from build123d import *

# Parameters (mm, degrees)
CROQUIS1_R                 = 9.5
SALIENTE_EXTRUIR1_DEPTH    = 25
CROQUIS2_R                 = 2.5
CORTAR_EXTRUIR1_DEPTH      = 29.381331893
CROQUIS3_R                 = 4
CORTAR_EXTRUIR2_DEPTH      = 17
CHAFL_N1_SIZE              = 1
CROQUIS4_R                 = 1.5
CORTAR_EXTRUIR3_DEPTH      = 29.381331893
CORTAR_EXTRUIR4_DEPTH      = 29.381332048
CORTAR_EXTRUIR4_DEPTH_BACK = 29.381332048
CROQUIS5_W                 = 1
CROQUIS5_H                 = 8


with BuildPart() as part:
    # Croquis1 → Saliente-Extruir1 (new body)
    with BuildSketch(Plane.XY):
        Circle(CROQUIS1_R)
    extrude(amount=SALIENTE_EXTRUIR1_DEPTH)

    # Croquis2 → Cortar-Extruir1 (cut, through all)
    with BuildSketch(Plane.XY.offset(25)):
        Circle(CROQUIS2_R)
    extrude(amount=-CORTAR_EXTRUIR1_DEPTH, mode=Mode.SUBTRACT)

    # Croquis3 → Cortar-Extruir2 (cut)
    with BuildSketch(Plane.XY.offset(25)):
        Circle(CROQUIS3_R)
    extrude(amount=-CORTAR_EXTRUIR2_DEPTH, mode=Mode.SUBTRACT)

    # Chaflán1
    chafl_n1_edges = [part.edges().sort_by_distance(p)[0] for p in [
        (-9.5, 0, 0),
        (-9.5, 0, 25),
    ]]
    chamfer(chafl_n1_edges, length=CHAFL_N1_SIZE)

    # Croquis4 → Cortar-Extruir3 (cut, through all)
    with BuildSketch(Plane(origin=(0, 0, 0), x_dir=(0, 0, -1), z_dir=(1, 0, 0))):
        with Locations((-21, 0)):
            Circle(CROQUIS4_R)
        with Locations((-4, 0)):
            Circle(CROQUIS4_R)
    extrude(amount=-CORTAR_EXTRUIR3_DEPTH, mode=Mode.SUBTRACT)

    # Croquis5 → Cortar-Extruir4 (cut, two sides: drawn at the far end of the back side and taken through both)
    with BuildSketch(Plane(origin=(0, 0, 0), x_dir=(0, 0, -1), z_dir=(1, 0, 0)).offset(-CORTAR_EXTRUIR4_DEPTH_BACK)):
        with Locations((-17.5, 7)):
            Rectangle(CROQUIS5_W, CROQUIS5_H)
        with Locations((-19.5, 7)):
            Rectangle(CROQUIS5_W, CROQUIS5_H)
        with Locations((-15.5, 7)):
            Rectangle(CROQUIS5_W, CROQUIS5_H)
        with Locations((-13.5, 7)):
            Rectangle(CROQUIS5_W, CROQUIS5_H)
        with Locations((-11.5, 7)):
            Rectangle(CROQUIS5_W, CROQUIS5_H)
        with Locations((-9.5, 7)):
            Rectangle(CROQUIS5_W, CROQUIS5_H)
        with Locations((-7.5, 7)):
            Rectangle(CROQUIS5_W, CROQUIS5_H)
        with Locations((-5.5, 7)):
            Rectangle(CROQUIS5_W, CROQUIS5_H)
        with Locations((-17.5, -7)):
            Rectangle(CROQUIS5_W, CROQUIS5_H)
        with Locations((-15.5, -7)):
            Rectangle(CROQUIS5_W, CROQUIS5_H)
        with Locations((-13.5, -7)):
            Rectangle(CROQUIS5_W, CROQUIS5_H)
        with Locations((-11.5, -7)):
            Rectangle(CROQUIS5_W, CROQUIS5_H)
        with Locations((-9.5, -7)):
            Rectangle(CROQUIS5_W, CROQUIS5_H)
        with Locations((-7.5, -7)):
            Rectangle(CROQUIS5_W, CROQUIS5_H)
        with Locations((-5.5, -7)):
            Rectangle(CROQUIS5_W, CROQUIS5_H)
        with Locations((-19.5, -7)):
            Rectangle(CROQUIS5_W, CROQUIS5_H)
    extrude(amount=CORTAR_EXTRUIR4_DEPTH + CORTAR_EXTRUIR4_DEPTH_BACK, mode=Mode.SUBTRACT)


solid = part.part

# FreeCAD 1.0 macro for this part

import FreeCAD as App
import Part
import Sketcher

V = App.Vector
Q = App.Units.Quantity


def edges_at(feature, points):
    """Names of the edges that pass closest to the given points."""
    edges = feature.Shape.Edges
    near = lambda p: min(range(len(edges)), key=lambda i: edges[i].distToShape(Part.Vertex(*p))[0])
    return sorted({f"Edge{near(p) + 1}" for p in points})

doc = App.newDocument("Part")
params = doc.addObject("Spreadsheet::Sheet", "Params")
for row, (alias, value) in enumerate([
    ("sketch1_diameter", "19 mm"),
    ("pad1_length", "25 mm"),
    ("sketch2_diameter", "5 mm"),
    ("sketch3_diameter", "8 mm"),
    ("pocket2_length", "17 mm"),
    ("chamfer_size", "1 mm"),
    ("sketch4_diameter", "3 mm"),
    ("sketch5_width", "8 mm"),
    ("sketch5_height", "1 mm"),
], start=1):
    params.set(f"A{row}", alias)
    params.set(f"B{row}", "=" + value)
    params.setAlias(f"B{row}", alias)

body = doc.addObject("PartDesign::Body", "Body")

# Sketch on XY plane
sketch1 = body.newObject("Sketcher::SketchObject", "Sketch")
sketch1.AttachmentSupport = (doc.getObject("XY_Plane"), [""])
sketch1.MapMode = "FlatFace"
sketch1.addGeometry(Part.Circle(V(0, 0, 0), V(0, 0, 1), 10), False)
sketch1.addConstraint([
    Sketcher.Constraint("Coincident", 0, 3, -1, 1),
    Sketcher.Constraint("Diameter", 0, Q("19 mm")),
])
sketch1.setExpression("Constraints[1]", "Params.sketch1_diameter")
pad1 = body.newObject("PartDesign::Pad", "Pad")
pad1.Profile = sketch1
pad1.setExpression("Length", "Params.pad1_length")

# Sketch on XY plane
sketch2 = body.newObject("Sketcher::SketchObject", "Sketch001")
sketch2.AttachmentSupport = (doc.getObject("XY_Plane"), [""])
sketch2.MapMode = "FlatFace"
sketch2.AttachmentOffset = App.Placement(V(0, 0, 25), App.Rotation())
sketch2.addGeometry(Part.Circle(V(0, 0, 0), V(0, 0, 1), 2.5), False)
sketch2.addConstraint([
    Sketcher.Constraint("Coincident", 0, 3, -1, 1),
    Sketcher.Constraint("Diameter", 0, Q("5 mm")),
])
sketch2.setExpression("Constraints[1]", "Params.sketch2_diameter")
pocket1 = body.newObject("PartDesign::Pocket", "Pocket")
pocket1.Profile = sketch2
pocket1.Type = "ThroughAll"

# Sketch on XY plane
sketch3 = body.newObject("Sketcher::SketchObject", "Sketch002")
sketch3.AttachmentSupport = (doc.getObject("XY_Plane"), [""])
sketch3.MapMode = "FlatFace"
sketch3.AttachmentOffset = App.Placement(V(0, 0, 25), App.Rotation())
sketch3.addGeometry(Part.Circle(V(0, 0, 0), V(0, 0, 1), 4), False)
sketch3.addConstraint([
    Sketcher.Constraint("Coincident", 0, 3, -1, 1),
    Sketcher.Constraint("Diameter", 0, Q("8 mm")),
])
sketch3.setExpression("Constraints[1]", "Params.sketch3_diameter")
pocket2 = body.newObject("PartDesign::Pocket", "Pocket001")
pocket2.Profile = sketch3
pocket2.setExpression("Length", "Params.pocket2_length")
doc.recompute()

chamfer = body.newObject("PartDesign::Chamfer", "Chamfer")
chamfer.Base = (pocket2, edges_at(pocket2, [(-9.5, 0, 0), (-9.5, 0, 25)]))
chamfer.setExpression("Size", "Params.chamfer_size")

# Sketch on YZ plane
sketch4 = body.newObject("Sketcher::SketchObject", "Sketch003")
sketch4.AttachmentSupport = (doc.getObject("YZ_Plane"), [""])
sketch4.MapMode = "FlatFace"
sketch4.addGeometry([
    Part.Circle(V(0, 21, 0), V(0, 0, 1), 1.5),
    Part.Circle(V(0, 4, 0), V(0, 0, 1), 1.5),
], False)
sketch4.addConstraint([
    Sketcher.Constraint("Equal", 0, 1),
    Sketcher.Constraint("PointOnObject", 0, 3, -2),
    Sketcher.Constraint("PointOnObject", 1, 3, -2),
    Sketcher.Constraint("Diameter", 0, Q("3 mm")),
    Sketcher.Constraint("DistanceY", -1, 1, 0, 3, Q("21 mm")),
    Sketcher.Constraint("DistanceY", -1, 1, 1, 3, Q("4 mm")),
])
sketch4.setExpression("Constraints[3]", "Params.sketch4_diameter")
pocket3 = body.newObject("PartDesign::Pocket", "Pocket002")
pocket3.Profile = sketch4
pocket3.Type = "ThroughAll"

# Sketch on YZ plane
sketch5 = body.newObject("Sketcher::SketchObject", "Sketch004")
sketch5.AttachmentSupport = (doc.getObject("YZ_Plane"), [""])
sketch5.MapMode = "FlatFace"
sketch5.addGeometry([
    Part.LineSegment(V(11, 18, 0), V(3, 18, 0)),  # 0
    Part.LineSegment(V(3, 18, 0), V(3, 17, 0)),  # 1
    Part.LineSegment(V(3, 17, 0), V(11, 17, 0)),  # 2
    Part.LineSegment(V(11, 17, 0), V(11, 18, 0)),  # 3
    Part.LineSegment(V(11, 20, 0), V(3, 20, 0)),  # 4
    Part.LineSegment(V(3, 20, 0), V(3, 19, 0)),  # 5
    Part.LineSegment(V(3, 19, 0), V(11, 19, 0)),  # 6
    Part.LineSegment(V(11, 19, 0), V(11, 20, 0)),  # 7
    Part.LineSegment(V(11, 16, 0), V(3, 16, 0)),  # 8
    Part.LineSegment(V(3, 16, 0), V(3, 15, 0)),  # 9
    Part.LineSegment(V(3, 15, 0), V(11, 15, 0)),  # 10
    Part.LineSegment(V(11, 15, 0), V(11, 16, 0)),  # 11
    Part.LineSegment(V(11, 14, 0), V(3, 14, 0)),  # 12
    Part.LineSegment(V(3, 14, 0), V(3, 13, 0)),  # 13
    Part.LineSegment(V(3, 13, 0), V(11, 13, 0)),  # 14
    Part.LineSegment(V(11, 13, 0), V(11, 14, 0)),  # 15
    Part.LineSegment(V(11, 12, 0), V(3, 12, 0)),  # 16
    Part.LineSegment(V(3, 12, 0), V(3, 11, 0)),  # 17
    Part.LineSegment(V(3, 11, 0), V(11, 11, 0)),  # 18
    Part.LineSegment(V(11, 11, 0), V(11, 12, 0)),  # 19
    Part.LineSegment(V(11, 10, 0), V(3, 10, 0)),  # 20
    Part.LineSegment(V(3, 10, 0), V(3, 9, 0)),  # 21
    Part.LineSegment(V(3, 9, 0), V(11, 9, 0)),  # 22
    Part.LineSegment(V(11, 9, 0), V(11, 10, 0)),  # 23
    Part.LineSegment(V(11, 8, 0), V(3, 8, 0)),  # 24
    Part.LineSegment(V(3, 8, 0), V(3, 7, 0)),  # 25
    Part.LineSegment(V(3, 7, 0), V(11, 7, 0)),  # 26
    Part.LineSegment(V(11, 7, 0), V(11, 8, 0)),  # 27
    Part.LineSegment(V(11, 6, 0), V(3, 6, 0)),  # 28
    Part.LineSegment(V(3, 6, 0), V(3, 5, 0)),  # 29
    Part.LineSegment(V(3, 5, 0), V(11, 5, 0)),  # 30
    Part.LineSegment(V(11, 5, 0), V(11, 6, 0)),  # 31
    Part.LineSegment(V(-3, 18, 0), V(-11, 18, 0)),  # 32
    Part.LineSegment(V(-11, 18, 0), V(-11, 17, 0)),  # 33
    Part.LineSegment(V(-11, 17, 0), V(-3, 17, 0)),  # 34
    Part.LineSegment(V(-3, 17, 0), V(-3, 18, 0)),  # 35
    Part.LineSegment(V(-3, 16, 0), V(-11, 16, 0)),  # 36
    Part.LineSegment(V(-11, 16, 0), V(-11, 15, 0)),  # 37
    Part.LineSegment(V(-11, 15, 0), V(-3, 15, 0)),  # 38
    Part.LineSegment(V(-3, 15, 0), V(-3, 16, 0)),  # 39
    Part.LineSegment(V(-3, 14, 0), V(-11, 14, 0)),  # 40
    Part.LineSegment(V(-11, 14, 0), V(-11, 13, 0)),  # 41
    Part.LineSegment(V(-11, 13, 0), V(-3, 13, 0)),  # 42
    Part.LineSegment(V(-3, 13, 0), V(-3, 14, 0)),  # 43
    Part.LineSegment(V(-3, 12, 0), V(-11, 12, 0)),  # 44
    Part.LineSegment(V(-11, 12, 0), V(-11, 11, 0)),  # 45
    Part.LineSegment(V(-11, 11, 0), V(-3, 11, 0)),  # 46
    Part.LineSegment(V(-3, 11, 0), V(-3, 12, 0)),  # 47
    Part.LineSegment(V(-3, 10, 0), V(-11, 10, 0)),  # 48
    Part.LineSegment(V(-11, 10, 0), V(-11, 9, 0)),  # 49
    Part.LineSegment(V(-11, 9, 0), V(-3, 9, 0)),  # 50
    Part.LineSegment(V(-3, 9, 0), V(-3, 10, 0)),  # 51
    Part.LineSegment(V(-3, 8, 0), V(-11, 8, 0)),  # 52
    Part.LineSegment(V(-11, 8, 0), V(-11, 7, 0)),  # 53
    Part.LineSegment(V(-11, 7, 0), V(-3, 7, 0)),  # 54
    Part.LineSegment(V(-3, 7, 0), V(-3, 8, 0)),  # 55
    Part.LineSegment(V(-3, 6, 0), V(-11, 6, 0)),  # 56
    Part.LineSegment(V(-11, 6, 0), V(-11, 5, 0)),  # 57
    Part.LineSegment(V(-11, 5, 0), V(-3, 5, 0)),  # 58
    Part.LineSegment(V(-3, 5, 0), V(-3, 6, 0)),  # 59
    Part.LineSegment(V(-3, 20, 0), V(-11, 20, 0)),  # 60
    Part.LineSegment(V(-11, 20, 0), V(-11, 19, 0)),  # 61
    Part.LineSegment(V(-11, 19, 0), V(-3, 19, 0)),  # 62
    Part.LineSegment(V(-3, 19, 0), V(-3, 20, 0)),  # 63
], False)
sketch5.addConstraint([
    Sketcher.Constraint("Coincident", 0, 2, 1, 1),
    Sketcher.Constraint("Coincident", 1, 2, 2, 1),
    Sketcher.Constraint("Coincident", 2, 2, 3, 1),
    Sketcher.Constraint("Coincident", 3, 2, 0, 1),
    Sketcher.Constraint("Coincident", 4, 2, 5, 1),
    Sketcher.Constraint("Coincident", 5, 2, 6, 1),
    Sketcher.Constraint("Coincident", 6, 2, 7, 1),
    Sketcher.Constraint("Coincident", 7, 2, 4, 1),
    Sketcher.Constraint("Coincident", 8, 2, 9, 1),
    Sketcher.Constraint("Coincident", 9, 2, 10, 1),
    Sketcher.Constraint("Coincident", 10, 2, 11, 1),
    Sketcher.Constraint("Coincident", 11, 2, 8, 1),
    Sketcher.Constraint("Coincident", 12, 2, 13, 1),
    Sketcher.Constraint("Coincident", 13, 2, 14, 1),
    Sketcher.Constraint("Coincident", 14, 2, 15, 1),
    Sketcher.Constraint("Coincident", 15, 2, 12, 1),
    Sketcher.Constraint("Coincident", 16, 2, 17, 1),
    Sketcher.Constraint("Coincident", 17, 2, 18, 1),
    Sketcher.Constraint("Coincident", 18, 2, 19, 1),
    Sketcher.Constraint("Coincident", 19, 2, 16, 1),
    Sketcher.Constraint("Coincident", 20, 2, 21, 1),
    Sketcher.Constraint("Coincident", 21, 2, 22, 1),
    Sketcher.Constraint("Coincident", 22, 2, 23, 1),
    Sketcher.Constraint("Coincident", 23, 2, 20, 1),
    Sketcher.Constraint("Coincident", 24, 2, 25, 1),
    Sketcher.Constraint("Coincident", 25, 2, 26, 1),
    Sketcher.Constraint("Coincident", 26, 2, 27, 1),
    Sketcher.Constraint("Coincident", 27, 2, 24, 1),
    Sketcher.Constraint("Coincident", 28, 2, 29, 1),
    Sketcher.Constraint("Coincident", 29, 2, 30, 1),
    Sketcher.Constraint("Coincident", 30, 2, 31, 1),
    Sketcher.Constraint("Coincident", 31, 2, 28, 1),
    Sketcher.Constraint("Coincident", 32, 2, 33, 1),
    Sketcher.Constraint("Coincident", 33, 2, 34, 1),
    Sketcher.Constraint("Coincident", 34, 2, 35, 1),
    Sketcher.Constraint("Coincident", 35, 2, 32, 1),
    Sketcher.Constraint("Coincident", 36, 2, 37, 1),
    Sketcher.Constraint("Coincident", 37, 2, 38, 1),
    Sketcher.Constraint("Coincident", 38, 2, 39, 1),
    Sketcher.Constraint("Coincident", 39, 2, 36, 1),
    Sketcher.Constraint("Coincident", 40, 2, 41, 1),
    Sketcher.Constraint("Coincident", 41, 2, 42, 1),
    Sketcher.Constraint("Coincident", 42, 2, 43, 1),
    Sketcher.Constraint("Coincident", 43, 2, 40, 1),
    Sketcher.Constraint("Coincident", 44, 2, 45, 1),
    Sketcher.Constraint("Coincident", 45, 2, 46, 1),
    Sketcher.Constraint("Coincident", 46, 2, 47, 1),
    Sketcher.Constraint("Coincident", 47, 2, 44, 1),
    Sketcher.Constraint("Coincident", 48, 2, 49, 1),
    Sketcher.Constraint("Coincident", 49, 2, 50, 1),
    Sketcher.Constraint("Coincident", 50, 2, 51, 1),
    Sketcher.Constraint("Coincident", 51, 2, 48, 1),
    Sketcher.Constraint("Coincident", 52, 2, 53, 1),
    Sketcher.Constraint("Coincident", 53, 2, 54, 1),
    Sketcher.Constraint("Coincident", 54, 2, 55, 1),
    Sketcher.Constraint("Coincident", 55, 2, 52, 1),
    Sketcher.Constraint("Coincident", 56, 2, 57, 1),
    Sketcher.Constraint("Coincident", 57, 2, 58, 1),
    Sketcher.Constraint("Coincident", 58, 2, 59, 1),
    Sketcher.Constraint("Coincident", 59, 2, 56, 1),
    Sketcher.Constraint("Coincident", 60, 2, 61, 1),
    Sketcher.Constraint("Coincident", 61, 2, 62, 1),
    Sketcher.Constraint("Coincident", 62, 2, 63, 1),
    Sketcher.Constraint("Coincident", 63, 2, 60, 1),
    Sketcher.Constraint("Horizontal", 0),
    Sketcher.Constraint("Vertical", 1),
    Sketcher.Constraint("Horizontal", 2),
    Sketcher.Constraint("Vertical", 3),
    Sketcher.Constraint("Horizontal", 4),
    Sketcher.Constraint("Vertical", 5),
    Sketcher.Constraint("Horizontal", 6),
    Sketcher.Constraint("Vertical", 7),
    Sketcher.Constraint("Horizontal", 8),
    Sketcher.Constraint("Vertical", 9),
    Sketcher.Constraint("Horizontal", 10),
    Sketcher.Constraint("Vertical", 11),
    Sketcher.Constraint("Horizontal", 12),
    Sketcher.Constraint("Vertical", 13),
    Sketcher.Constraint("Horizontal", 14),
    Sketcher.Constraint("Vertical", 15),
    Sketcher.Constraint("Horizontal", 16),
    Sketcher.Constraint("Vertical", 17),
    Sketcher.Constraint("Horizontal", 18),
    Sketcher.Constraint("Vertical", 19),
    Sketcher.Constraint("Horizontal", 20),
    Sketcher.Constraint("Vertical", 21),
    Sketcher.Constraint("Horizontal", 22),
    Sketcher.Constraint("Vertical", 23),
    Sketcher.Constraint("Horizontal", 24),
    Sketcher.Constraint("Vertical", 25),
    Sketcher.Constraint("Horizontal", 26),
    Sketcher.Constraint("Vertical", 27),
    Sketcher.Constraint("Horizontal", 28),
    Sketcher.Constraint("Vertical", 29),
    Sketcher.Constraint("Horizontal", 30),
    Sketcher.Constraint("Vertical", 31),
    Sketcher.Constraint("Horizontal", 32),
    Sketcher.Constraint("Vertical", 33),
    Sketcher.Constraint("Horizontal", 34),
    Sketcher.Constraint("Vertical", 35),
    Sketcher.Constraint("Horizontal", 36),
    Sketcher.Constraint("Vertical", 37),
    Sketcher.Constraint("Horizontal", 38),
    Sketcher.Constraint("Vertical", 39),
    Sketcher.Constraint("Horizontal", 40),
    Sketcher.Constraint("Vertical", 41),
    Sketcher.Constraint("Horizontal", 42),
    Sketcher.Constraint("Vertical", 43),
    Sketcher.Constraint("Horizontal", 44),
    Sketcher.Constraint("Vertical", 45),
    Sketcher.Constraint("Horizontal", 46),
    Sketcher.Constraint("Vertical", 47),
    Sketcher.Constraint("Horizontal", 48),
    Sketcher.Constraint("Vertical", 49),
    Sketcher.Constraint("Horizontal", 50),
    Sketcher.Constraint("Vertical", 51),
    Sketcher.Constraint("Horizontal", 52),
    Sketcher.Constraint("Vertical", 53),
    Sketcher.Constraint("Horizontal", 54),
    Sketcher.Constraint("Vertical", 55),
    Sketcher.Constraint("Horizontal", 56),
    Sketcher.Constraint("Vertical", 57),
    Sketcher.Constraint("Horizontal", 58),
    Sketcher.Constraint("Vertical", 59),
    Sketcher.Constraint("Horizontal", 60),
    Sketcher.Constraint("Vertical", 61),
    Sketcher.Constraint("Horizontal", 62),
    Sketcher.Constraint("Vertical", 63),
    Sketcher.Constraint("Symmetric", 3, 2, 32, 2, -2),
    Sketcher.Constraint("Symmetric", 1, 2, 34, 2, -2),
    Sketcher.Constraint("Symmetric", 11, 2, 36, 2, -2),
    Sketcher.Constraint("Symmetric", 9, 2, 38, 2, -2),
    Sketcher.Constraint("Symmetric", 15, 2, 40, 2, -2),
    Sketcher.Constraint("Symmetric", 13, 2, 42, 2, -2),
    Sketcher.Constraint("Symmetric", 19, 2, 44, 2, -2),
    Sketcher.Constraint("Symmetric", 17, 2, 46, 2, -2),
    Sketcher.Constraint("Symmetric", 23, 2, 48, 2, -2),
    Sketcher.Constraint("Symmetric", 21, 2, 50, 2, -2),
    Sketcher.Constraint("Symmetric", 27, 2, 52, 2, -2),
    Sketcher.Constraint("Symmetric", 25, 2, 54, 2, -2),
    Sketcher.Constraint("Symmetric", 31, 2, 56, 2, -2),
    Sketcher.Constraint("Symmetric", 29, 2, 58, 2, -2),
    Sketcher.Constraint("Symmetric", 7, 2, 60, 2, -2),
    Sketcher.Constraint("Symmetric", 5, 2, 62, 2, -2),
    Sketcher.Constraint("Vertical", 1, 2, 4, 2),
    Sketcher.Constraint("Vertical", 3, 2, 6, 2),
    Sketcher.Constraint("Vertical", 5, 2, 8, 2),
    Sketcher.Constraint("Vertical", 7, 2, 10, 2),
    Sketcher.Constraint("Vertical", 9, 2, 12, 2),
    Sketcher.Constraint("Vertical", 11, 2, 14, 2),
    Sketcher.Constraint("Vertical", 13, 2, 16, 2),
    Sketcher.Constraint("Vertical", 15, 2, 18, 2),
    Sketcher.Constraint("Vertical", 17, 2, 20, 2),
    Sketcher.Constraint("Vertical", 19, 2, 22, 2),
    Sketcher.Constraint("Vertical", 21, 2, 24, 2),
    Sketcher.Constraint("Vertical", 23, 2, 26, 2),
    Sketcher.Constraint("Vertical", 25, 2, 28, 2),
    Sketcher.Constraint("Vertical", 27, 2, 30, 2),
    Sketcher.Constraint("Equal", 3, 5),
    Sketcher.Constraint("Equal", 7, 9),
    Sketcher.Constraint("Equal", 11, 13),
    Sketcher.Constraint("Equal", 15, 17),
    Sketcher.Constraint("Equal", 19, 21),
    Sketcher.Constraint("Equal", 23, 25),
    Sketcher.Constraint("Equal", 27, 29),
    Sketcher.Constraint("DistanceX", 0, 2, 0, 1, Q("8 mm")),
    Sketcher.Constraint("DistanceY", 1, 2, 1, 1, Q("1 mm")),
    Sketcher.Constraint("DistanceX", -1, 1, 0, 2, Q("3 mm")),
    Sketcher.Constraint("DistanceY", -1, 1, 0, 2, Q("18 mm")),
    Sketcher.Constraint("DistanceY", -1, 1, 4, 2, Q("20 mm")),
    Sketcher.Constraint("DistanceY", -1, 1, 8, 2, Q("16 mm")),
    Sketcher.Constraint("DistanceY", -1, 1, 12, 2, Q("14 mm")),
    Sketcher.Constraint("DistanceY", -1, 1, 16, 2, Q("12 mm")),
    Sketcher.Constraint("DistanceY", -1, 1, 20, 2, Q("10 mm")),
    Sketcher.Constraint("DistanceY", -1, 1, 24, 2, Q("8 mm")),
    Sketcher.Constraint("DistanceY", -1, 1, 28, 2, Q("6 mm")),
])
sketch5.setExpression("Constraints[165]", "Params.sketch5_width")
sketch5.setExpression("Constraints[166]", "Params.sketch5_height")
pocket4 = body.newObject("PartDesign::Pocket", "Pocket003")
pocket4.Profile = sketch5
pocket4.Type = "ThroughAll"
pocket4.Midplane = True

doc.recompute()
